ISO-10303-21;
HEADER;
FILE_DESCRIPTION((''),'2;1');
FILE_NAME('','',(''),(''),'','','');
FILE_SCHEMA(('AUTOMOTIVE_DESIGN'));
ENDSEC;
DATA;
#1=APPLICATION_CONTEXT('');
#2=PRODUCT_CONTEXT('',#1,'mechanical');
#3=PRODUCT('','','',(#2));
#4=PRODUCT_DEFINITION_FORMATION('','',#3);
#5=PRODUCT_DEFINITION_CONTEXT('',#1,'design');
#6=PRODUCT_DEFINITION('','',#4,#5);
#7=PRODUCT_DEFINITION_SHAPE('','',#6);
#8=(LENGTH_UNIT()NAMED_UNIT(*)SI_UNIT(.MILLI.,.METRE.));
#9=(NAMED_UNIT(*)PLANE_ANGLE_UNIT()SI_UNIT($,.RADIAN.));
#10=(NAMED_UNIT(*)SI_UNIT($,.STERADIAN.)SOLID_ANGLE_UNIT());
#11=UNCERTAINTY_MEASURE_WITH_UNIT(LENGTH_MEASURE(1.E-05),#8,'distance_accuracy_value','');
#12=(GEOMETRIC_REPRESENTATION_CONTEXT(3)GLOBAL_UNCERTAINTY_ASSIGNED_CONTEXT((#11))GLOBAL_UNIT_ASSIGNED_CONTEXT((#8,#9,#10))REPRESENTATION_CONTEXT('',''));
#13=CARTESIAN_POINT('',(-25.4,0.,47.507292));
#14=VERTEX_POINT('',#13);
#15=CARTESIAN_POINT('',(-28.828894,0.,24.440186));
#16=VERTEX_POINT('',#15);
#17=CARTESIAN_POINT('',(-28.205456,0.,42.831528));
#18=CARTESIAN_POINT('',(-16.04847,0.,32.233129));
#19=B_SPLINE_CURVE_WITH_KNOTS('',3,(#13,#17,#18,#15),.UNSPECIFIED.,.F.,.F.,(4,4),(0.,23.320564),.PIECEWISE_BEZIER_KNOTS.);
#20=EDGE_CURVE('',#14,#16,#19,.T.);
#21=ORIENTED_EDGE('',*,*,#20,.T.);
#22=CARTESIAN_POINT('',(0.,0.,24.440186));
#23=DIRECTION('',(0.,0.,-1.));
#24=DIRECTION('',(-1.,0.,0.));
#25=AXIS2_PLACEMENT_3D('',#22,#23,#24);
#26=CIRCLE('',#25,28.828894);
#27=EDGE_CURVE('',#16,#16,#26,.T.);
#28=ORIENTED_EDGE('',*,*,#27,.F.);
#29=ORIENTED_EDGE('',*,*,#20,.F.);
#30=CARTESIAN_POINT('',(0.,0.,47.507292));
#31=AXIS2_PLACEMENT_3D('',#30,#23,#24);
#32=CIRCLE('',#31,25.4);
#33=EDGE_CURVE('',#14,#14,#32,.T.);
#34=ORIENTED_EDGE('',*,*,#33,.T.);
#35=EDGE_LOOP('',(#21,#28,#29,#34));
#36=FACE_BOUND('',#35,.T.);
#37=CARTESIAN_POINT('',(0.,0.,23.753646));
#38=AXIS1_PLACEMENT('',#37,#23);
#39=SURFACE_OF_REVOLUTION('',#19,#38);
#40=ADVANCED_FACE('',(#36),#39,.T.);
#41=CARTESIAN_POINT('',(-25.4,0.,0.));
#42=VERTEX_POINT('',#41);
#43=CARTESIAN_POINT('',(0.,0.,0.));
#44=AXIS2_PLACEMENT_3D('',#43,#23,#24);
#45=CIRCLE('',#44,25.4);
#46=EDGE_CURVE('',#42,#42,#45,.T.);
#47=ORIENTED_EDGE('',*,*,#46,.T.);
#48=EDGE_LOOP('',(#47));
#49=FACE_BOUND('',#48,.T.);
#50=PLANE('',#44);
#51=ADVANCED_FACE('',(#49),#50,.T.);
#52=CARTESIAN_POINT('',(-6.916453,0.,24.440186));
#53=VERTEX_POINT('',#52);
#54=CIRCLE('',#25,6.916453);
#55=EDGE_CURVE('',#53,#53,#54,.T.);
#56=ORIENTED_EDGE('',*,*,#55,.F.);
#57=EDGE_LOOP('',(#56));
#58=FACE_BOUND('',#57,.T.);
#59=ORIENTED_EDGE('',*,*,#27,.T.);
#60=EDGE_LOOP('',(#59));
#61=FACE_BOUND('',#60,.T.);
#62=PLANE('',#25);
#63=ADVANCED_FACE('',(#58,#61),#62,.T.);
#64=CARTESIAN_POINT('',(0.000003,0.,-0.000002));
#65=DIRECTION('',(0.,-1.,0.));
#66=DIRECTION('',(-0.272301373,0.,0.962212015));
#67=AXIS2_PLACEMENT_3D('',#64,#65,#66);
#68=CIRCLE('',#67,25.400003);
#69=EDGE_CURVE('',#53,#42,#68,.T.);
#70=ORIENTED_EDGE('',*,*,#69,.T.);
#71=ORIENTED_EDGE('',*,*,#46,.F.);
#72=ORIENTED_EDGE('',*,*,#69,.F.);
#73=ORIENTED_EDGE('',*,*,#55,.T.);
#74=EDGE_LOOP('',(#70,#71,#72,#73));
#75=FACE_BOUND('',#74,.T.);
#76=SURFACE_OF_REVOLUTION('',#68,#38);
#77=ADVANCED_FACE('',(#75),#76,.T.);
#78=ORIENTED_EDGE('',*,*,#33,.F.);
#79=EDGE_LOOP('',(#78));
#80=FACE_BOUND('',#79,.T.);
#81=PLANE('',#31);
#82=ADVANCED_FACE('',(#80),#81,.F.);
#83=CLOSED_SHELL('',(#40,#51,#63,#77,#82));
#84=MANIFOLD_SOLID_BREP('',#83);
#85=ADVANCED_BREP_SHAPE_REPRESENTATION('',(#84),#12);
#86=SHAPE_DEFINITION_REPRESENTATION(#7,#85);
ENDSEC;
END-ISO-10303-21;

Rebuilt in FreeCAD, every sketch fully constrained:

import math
import FreeCAD as App
import Part
import Sketcher
Q = App.Units.Quantity

doc = App.newDocument("Part")
params = doc.addObject("Spreadsheet::Sheet", "Params")
for row, (alias, value) in enumerate([
    ("sketch1_radius", "1.0000001 in"),
    ("revolution_angle", "360 deg"),
], start=1):
    params.set(f"A{row}", alias)
    params.set(f"B{row}", "=" + value)
    params.setAlias(f"B{row}", alias)

body = doc.addObject("PartDesign::Body", "Body")

sketch1 = body.newObject("Sketcher::SketchObject", "Sketch")
sketch1.AttachmentSupport = (doc.getObject("XZ_Plane"), [""])
sketch1.MapMode = "FlatFace"
sketch1.addGeometry([
    Part.LineSegment(App.Vector(-28.828894, 24.440186, 0), App.Vector(-6.916453, 24.440186, 0)),
    Part.ArcOfCircle(Part.Circle(App.Vector(0.000003, -0.000002, 0), App.Vector(0, 0, 1), 25.400003), math.radians(105.801258), math.radians(179.999996)),
    Part.LineSegment(App.Vector(-25.4, 0, 0), App.Vector(0, 0, 0)),
    Part.LineSegment(App.Vector(0, 0, 0), App.Vector(0, 47.507292, 0)),
    Part.LineSegment(App.Vector(0, 47.507292, 0), App.Vector(-25.4, 47.507292, 0)),
    Part.BSplineCurve([App.Vector(-25.4, 47.507292, 0), App.Vector(-28.205456, 42.831528, 0), App.Vector(-16.04847, 32.233129, 0), App.Vector(-28.828894, 24.440186, 0)], [4, 4], [0, 23.320564], False, 3, [1, 1, 1, 1], False),
], False)
sketch1.addConstraint([
    Sketcher.Constraint("Block", 5),
    Sketcher.Constraint("Coincident", 0, 2, 1, 1),
    Sketcher.Constraint("Coincident", 1, 2, 2, 1),
    Sketcher.Constraint("Coincident", 2, 2, 3, 1),
    Sketcher.Constraint("Coincident", 3, 2, 4, 1),
    Sketcher.Constraint("Coincident", 4, 2, 5, 1),
    Sketcher.Constraint("Coincident", 5, 2, 0, 1),
    Sketcher.Constraint("Horizontal", 0),
    Sketcher.Constraint("Horizontal", 2),
    Sketcher.Constraint("Vertical", 3),
    Sketcher.Constraint("Horizontal", 4),
    Sketcher.Constraint("Coincident", 1, 3, -1, 1),
    Sketcher.Constraint("Coincident", 2, 2, -1, 1),
    Sketcher.Constraint("Radius", 1, Q("1.0000001 in")),
])
sketch1.setExpression("Constraints[13]", "Params.sketch1_radius")
revolution = body.newObject("PartDesign::Revolution", "Revolution")
revolution.Profile = sketch1
revolution.ReferenceAxis = (sketch1, ["V_Axis"])
revolution.setExpression("Angle", "Params.revolution_angle")

doc.recompute()
